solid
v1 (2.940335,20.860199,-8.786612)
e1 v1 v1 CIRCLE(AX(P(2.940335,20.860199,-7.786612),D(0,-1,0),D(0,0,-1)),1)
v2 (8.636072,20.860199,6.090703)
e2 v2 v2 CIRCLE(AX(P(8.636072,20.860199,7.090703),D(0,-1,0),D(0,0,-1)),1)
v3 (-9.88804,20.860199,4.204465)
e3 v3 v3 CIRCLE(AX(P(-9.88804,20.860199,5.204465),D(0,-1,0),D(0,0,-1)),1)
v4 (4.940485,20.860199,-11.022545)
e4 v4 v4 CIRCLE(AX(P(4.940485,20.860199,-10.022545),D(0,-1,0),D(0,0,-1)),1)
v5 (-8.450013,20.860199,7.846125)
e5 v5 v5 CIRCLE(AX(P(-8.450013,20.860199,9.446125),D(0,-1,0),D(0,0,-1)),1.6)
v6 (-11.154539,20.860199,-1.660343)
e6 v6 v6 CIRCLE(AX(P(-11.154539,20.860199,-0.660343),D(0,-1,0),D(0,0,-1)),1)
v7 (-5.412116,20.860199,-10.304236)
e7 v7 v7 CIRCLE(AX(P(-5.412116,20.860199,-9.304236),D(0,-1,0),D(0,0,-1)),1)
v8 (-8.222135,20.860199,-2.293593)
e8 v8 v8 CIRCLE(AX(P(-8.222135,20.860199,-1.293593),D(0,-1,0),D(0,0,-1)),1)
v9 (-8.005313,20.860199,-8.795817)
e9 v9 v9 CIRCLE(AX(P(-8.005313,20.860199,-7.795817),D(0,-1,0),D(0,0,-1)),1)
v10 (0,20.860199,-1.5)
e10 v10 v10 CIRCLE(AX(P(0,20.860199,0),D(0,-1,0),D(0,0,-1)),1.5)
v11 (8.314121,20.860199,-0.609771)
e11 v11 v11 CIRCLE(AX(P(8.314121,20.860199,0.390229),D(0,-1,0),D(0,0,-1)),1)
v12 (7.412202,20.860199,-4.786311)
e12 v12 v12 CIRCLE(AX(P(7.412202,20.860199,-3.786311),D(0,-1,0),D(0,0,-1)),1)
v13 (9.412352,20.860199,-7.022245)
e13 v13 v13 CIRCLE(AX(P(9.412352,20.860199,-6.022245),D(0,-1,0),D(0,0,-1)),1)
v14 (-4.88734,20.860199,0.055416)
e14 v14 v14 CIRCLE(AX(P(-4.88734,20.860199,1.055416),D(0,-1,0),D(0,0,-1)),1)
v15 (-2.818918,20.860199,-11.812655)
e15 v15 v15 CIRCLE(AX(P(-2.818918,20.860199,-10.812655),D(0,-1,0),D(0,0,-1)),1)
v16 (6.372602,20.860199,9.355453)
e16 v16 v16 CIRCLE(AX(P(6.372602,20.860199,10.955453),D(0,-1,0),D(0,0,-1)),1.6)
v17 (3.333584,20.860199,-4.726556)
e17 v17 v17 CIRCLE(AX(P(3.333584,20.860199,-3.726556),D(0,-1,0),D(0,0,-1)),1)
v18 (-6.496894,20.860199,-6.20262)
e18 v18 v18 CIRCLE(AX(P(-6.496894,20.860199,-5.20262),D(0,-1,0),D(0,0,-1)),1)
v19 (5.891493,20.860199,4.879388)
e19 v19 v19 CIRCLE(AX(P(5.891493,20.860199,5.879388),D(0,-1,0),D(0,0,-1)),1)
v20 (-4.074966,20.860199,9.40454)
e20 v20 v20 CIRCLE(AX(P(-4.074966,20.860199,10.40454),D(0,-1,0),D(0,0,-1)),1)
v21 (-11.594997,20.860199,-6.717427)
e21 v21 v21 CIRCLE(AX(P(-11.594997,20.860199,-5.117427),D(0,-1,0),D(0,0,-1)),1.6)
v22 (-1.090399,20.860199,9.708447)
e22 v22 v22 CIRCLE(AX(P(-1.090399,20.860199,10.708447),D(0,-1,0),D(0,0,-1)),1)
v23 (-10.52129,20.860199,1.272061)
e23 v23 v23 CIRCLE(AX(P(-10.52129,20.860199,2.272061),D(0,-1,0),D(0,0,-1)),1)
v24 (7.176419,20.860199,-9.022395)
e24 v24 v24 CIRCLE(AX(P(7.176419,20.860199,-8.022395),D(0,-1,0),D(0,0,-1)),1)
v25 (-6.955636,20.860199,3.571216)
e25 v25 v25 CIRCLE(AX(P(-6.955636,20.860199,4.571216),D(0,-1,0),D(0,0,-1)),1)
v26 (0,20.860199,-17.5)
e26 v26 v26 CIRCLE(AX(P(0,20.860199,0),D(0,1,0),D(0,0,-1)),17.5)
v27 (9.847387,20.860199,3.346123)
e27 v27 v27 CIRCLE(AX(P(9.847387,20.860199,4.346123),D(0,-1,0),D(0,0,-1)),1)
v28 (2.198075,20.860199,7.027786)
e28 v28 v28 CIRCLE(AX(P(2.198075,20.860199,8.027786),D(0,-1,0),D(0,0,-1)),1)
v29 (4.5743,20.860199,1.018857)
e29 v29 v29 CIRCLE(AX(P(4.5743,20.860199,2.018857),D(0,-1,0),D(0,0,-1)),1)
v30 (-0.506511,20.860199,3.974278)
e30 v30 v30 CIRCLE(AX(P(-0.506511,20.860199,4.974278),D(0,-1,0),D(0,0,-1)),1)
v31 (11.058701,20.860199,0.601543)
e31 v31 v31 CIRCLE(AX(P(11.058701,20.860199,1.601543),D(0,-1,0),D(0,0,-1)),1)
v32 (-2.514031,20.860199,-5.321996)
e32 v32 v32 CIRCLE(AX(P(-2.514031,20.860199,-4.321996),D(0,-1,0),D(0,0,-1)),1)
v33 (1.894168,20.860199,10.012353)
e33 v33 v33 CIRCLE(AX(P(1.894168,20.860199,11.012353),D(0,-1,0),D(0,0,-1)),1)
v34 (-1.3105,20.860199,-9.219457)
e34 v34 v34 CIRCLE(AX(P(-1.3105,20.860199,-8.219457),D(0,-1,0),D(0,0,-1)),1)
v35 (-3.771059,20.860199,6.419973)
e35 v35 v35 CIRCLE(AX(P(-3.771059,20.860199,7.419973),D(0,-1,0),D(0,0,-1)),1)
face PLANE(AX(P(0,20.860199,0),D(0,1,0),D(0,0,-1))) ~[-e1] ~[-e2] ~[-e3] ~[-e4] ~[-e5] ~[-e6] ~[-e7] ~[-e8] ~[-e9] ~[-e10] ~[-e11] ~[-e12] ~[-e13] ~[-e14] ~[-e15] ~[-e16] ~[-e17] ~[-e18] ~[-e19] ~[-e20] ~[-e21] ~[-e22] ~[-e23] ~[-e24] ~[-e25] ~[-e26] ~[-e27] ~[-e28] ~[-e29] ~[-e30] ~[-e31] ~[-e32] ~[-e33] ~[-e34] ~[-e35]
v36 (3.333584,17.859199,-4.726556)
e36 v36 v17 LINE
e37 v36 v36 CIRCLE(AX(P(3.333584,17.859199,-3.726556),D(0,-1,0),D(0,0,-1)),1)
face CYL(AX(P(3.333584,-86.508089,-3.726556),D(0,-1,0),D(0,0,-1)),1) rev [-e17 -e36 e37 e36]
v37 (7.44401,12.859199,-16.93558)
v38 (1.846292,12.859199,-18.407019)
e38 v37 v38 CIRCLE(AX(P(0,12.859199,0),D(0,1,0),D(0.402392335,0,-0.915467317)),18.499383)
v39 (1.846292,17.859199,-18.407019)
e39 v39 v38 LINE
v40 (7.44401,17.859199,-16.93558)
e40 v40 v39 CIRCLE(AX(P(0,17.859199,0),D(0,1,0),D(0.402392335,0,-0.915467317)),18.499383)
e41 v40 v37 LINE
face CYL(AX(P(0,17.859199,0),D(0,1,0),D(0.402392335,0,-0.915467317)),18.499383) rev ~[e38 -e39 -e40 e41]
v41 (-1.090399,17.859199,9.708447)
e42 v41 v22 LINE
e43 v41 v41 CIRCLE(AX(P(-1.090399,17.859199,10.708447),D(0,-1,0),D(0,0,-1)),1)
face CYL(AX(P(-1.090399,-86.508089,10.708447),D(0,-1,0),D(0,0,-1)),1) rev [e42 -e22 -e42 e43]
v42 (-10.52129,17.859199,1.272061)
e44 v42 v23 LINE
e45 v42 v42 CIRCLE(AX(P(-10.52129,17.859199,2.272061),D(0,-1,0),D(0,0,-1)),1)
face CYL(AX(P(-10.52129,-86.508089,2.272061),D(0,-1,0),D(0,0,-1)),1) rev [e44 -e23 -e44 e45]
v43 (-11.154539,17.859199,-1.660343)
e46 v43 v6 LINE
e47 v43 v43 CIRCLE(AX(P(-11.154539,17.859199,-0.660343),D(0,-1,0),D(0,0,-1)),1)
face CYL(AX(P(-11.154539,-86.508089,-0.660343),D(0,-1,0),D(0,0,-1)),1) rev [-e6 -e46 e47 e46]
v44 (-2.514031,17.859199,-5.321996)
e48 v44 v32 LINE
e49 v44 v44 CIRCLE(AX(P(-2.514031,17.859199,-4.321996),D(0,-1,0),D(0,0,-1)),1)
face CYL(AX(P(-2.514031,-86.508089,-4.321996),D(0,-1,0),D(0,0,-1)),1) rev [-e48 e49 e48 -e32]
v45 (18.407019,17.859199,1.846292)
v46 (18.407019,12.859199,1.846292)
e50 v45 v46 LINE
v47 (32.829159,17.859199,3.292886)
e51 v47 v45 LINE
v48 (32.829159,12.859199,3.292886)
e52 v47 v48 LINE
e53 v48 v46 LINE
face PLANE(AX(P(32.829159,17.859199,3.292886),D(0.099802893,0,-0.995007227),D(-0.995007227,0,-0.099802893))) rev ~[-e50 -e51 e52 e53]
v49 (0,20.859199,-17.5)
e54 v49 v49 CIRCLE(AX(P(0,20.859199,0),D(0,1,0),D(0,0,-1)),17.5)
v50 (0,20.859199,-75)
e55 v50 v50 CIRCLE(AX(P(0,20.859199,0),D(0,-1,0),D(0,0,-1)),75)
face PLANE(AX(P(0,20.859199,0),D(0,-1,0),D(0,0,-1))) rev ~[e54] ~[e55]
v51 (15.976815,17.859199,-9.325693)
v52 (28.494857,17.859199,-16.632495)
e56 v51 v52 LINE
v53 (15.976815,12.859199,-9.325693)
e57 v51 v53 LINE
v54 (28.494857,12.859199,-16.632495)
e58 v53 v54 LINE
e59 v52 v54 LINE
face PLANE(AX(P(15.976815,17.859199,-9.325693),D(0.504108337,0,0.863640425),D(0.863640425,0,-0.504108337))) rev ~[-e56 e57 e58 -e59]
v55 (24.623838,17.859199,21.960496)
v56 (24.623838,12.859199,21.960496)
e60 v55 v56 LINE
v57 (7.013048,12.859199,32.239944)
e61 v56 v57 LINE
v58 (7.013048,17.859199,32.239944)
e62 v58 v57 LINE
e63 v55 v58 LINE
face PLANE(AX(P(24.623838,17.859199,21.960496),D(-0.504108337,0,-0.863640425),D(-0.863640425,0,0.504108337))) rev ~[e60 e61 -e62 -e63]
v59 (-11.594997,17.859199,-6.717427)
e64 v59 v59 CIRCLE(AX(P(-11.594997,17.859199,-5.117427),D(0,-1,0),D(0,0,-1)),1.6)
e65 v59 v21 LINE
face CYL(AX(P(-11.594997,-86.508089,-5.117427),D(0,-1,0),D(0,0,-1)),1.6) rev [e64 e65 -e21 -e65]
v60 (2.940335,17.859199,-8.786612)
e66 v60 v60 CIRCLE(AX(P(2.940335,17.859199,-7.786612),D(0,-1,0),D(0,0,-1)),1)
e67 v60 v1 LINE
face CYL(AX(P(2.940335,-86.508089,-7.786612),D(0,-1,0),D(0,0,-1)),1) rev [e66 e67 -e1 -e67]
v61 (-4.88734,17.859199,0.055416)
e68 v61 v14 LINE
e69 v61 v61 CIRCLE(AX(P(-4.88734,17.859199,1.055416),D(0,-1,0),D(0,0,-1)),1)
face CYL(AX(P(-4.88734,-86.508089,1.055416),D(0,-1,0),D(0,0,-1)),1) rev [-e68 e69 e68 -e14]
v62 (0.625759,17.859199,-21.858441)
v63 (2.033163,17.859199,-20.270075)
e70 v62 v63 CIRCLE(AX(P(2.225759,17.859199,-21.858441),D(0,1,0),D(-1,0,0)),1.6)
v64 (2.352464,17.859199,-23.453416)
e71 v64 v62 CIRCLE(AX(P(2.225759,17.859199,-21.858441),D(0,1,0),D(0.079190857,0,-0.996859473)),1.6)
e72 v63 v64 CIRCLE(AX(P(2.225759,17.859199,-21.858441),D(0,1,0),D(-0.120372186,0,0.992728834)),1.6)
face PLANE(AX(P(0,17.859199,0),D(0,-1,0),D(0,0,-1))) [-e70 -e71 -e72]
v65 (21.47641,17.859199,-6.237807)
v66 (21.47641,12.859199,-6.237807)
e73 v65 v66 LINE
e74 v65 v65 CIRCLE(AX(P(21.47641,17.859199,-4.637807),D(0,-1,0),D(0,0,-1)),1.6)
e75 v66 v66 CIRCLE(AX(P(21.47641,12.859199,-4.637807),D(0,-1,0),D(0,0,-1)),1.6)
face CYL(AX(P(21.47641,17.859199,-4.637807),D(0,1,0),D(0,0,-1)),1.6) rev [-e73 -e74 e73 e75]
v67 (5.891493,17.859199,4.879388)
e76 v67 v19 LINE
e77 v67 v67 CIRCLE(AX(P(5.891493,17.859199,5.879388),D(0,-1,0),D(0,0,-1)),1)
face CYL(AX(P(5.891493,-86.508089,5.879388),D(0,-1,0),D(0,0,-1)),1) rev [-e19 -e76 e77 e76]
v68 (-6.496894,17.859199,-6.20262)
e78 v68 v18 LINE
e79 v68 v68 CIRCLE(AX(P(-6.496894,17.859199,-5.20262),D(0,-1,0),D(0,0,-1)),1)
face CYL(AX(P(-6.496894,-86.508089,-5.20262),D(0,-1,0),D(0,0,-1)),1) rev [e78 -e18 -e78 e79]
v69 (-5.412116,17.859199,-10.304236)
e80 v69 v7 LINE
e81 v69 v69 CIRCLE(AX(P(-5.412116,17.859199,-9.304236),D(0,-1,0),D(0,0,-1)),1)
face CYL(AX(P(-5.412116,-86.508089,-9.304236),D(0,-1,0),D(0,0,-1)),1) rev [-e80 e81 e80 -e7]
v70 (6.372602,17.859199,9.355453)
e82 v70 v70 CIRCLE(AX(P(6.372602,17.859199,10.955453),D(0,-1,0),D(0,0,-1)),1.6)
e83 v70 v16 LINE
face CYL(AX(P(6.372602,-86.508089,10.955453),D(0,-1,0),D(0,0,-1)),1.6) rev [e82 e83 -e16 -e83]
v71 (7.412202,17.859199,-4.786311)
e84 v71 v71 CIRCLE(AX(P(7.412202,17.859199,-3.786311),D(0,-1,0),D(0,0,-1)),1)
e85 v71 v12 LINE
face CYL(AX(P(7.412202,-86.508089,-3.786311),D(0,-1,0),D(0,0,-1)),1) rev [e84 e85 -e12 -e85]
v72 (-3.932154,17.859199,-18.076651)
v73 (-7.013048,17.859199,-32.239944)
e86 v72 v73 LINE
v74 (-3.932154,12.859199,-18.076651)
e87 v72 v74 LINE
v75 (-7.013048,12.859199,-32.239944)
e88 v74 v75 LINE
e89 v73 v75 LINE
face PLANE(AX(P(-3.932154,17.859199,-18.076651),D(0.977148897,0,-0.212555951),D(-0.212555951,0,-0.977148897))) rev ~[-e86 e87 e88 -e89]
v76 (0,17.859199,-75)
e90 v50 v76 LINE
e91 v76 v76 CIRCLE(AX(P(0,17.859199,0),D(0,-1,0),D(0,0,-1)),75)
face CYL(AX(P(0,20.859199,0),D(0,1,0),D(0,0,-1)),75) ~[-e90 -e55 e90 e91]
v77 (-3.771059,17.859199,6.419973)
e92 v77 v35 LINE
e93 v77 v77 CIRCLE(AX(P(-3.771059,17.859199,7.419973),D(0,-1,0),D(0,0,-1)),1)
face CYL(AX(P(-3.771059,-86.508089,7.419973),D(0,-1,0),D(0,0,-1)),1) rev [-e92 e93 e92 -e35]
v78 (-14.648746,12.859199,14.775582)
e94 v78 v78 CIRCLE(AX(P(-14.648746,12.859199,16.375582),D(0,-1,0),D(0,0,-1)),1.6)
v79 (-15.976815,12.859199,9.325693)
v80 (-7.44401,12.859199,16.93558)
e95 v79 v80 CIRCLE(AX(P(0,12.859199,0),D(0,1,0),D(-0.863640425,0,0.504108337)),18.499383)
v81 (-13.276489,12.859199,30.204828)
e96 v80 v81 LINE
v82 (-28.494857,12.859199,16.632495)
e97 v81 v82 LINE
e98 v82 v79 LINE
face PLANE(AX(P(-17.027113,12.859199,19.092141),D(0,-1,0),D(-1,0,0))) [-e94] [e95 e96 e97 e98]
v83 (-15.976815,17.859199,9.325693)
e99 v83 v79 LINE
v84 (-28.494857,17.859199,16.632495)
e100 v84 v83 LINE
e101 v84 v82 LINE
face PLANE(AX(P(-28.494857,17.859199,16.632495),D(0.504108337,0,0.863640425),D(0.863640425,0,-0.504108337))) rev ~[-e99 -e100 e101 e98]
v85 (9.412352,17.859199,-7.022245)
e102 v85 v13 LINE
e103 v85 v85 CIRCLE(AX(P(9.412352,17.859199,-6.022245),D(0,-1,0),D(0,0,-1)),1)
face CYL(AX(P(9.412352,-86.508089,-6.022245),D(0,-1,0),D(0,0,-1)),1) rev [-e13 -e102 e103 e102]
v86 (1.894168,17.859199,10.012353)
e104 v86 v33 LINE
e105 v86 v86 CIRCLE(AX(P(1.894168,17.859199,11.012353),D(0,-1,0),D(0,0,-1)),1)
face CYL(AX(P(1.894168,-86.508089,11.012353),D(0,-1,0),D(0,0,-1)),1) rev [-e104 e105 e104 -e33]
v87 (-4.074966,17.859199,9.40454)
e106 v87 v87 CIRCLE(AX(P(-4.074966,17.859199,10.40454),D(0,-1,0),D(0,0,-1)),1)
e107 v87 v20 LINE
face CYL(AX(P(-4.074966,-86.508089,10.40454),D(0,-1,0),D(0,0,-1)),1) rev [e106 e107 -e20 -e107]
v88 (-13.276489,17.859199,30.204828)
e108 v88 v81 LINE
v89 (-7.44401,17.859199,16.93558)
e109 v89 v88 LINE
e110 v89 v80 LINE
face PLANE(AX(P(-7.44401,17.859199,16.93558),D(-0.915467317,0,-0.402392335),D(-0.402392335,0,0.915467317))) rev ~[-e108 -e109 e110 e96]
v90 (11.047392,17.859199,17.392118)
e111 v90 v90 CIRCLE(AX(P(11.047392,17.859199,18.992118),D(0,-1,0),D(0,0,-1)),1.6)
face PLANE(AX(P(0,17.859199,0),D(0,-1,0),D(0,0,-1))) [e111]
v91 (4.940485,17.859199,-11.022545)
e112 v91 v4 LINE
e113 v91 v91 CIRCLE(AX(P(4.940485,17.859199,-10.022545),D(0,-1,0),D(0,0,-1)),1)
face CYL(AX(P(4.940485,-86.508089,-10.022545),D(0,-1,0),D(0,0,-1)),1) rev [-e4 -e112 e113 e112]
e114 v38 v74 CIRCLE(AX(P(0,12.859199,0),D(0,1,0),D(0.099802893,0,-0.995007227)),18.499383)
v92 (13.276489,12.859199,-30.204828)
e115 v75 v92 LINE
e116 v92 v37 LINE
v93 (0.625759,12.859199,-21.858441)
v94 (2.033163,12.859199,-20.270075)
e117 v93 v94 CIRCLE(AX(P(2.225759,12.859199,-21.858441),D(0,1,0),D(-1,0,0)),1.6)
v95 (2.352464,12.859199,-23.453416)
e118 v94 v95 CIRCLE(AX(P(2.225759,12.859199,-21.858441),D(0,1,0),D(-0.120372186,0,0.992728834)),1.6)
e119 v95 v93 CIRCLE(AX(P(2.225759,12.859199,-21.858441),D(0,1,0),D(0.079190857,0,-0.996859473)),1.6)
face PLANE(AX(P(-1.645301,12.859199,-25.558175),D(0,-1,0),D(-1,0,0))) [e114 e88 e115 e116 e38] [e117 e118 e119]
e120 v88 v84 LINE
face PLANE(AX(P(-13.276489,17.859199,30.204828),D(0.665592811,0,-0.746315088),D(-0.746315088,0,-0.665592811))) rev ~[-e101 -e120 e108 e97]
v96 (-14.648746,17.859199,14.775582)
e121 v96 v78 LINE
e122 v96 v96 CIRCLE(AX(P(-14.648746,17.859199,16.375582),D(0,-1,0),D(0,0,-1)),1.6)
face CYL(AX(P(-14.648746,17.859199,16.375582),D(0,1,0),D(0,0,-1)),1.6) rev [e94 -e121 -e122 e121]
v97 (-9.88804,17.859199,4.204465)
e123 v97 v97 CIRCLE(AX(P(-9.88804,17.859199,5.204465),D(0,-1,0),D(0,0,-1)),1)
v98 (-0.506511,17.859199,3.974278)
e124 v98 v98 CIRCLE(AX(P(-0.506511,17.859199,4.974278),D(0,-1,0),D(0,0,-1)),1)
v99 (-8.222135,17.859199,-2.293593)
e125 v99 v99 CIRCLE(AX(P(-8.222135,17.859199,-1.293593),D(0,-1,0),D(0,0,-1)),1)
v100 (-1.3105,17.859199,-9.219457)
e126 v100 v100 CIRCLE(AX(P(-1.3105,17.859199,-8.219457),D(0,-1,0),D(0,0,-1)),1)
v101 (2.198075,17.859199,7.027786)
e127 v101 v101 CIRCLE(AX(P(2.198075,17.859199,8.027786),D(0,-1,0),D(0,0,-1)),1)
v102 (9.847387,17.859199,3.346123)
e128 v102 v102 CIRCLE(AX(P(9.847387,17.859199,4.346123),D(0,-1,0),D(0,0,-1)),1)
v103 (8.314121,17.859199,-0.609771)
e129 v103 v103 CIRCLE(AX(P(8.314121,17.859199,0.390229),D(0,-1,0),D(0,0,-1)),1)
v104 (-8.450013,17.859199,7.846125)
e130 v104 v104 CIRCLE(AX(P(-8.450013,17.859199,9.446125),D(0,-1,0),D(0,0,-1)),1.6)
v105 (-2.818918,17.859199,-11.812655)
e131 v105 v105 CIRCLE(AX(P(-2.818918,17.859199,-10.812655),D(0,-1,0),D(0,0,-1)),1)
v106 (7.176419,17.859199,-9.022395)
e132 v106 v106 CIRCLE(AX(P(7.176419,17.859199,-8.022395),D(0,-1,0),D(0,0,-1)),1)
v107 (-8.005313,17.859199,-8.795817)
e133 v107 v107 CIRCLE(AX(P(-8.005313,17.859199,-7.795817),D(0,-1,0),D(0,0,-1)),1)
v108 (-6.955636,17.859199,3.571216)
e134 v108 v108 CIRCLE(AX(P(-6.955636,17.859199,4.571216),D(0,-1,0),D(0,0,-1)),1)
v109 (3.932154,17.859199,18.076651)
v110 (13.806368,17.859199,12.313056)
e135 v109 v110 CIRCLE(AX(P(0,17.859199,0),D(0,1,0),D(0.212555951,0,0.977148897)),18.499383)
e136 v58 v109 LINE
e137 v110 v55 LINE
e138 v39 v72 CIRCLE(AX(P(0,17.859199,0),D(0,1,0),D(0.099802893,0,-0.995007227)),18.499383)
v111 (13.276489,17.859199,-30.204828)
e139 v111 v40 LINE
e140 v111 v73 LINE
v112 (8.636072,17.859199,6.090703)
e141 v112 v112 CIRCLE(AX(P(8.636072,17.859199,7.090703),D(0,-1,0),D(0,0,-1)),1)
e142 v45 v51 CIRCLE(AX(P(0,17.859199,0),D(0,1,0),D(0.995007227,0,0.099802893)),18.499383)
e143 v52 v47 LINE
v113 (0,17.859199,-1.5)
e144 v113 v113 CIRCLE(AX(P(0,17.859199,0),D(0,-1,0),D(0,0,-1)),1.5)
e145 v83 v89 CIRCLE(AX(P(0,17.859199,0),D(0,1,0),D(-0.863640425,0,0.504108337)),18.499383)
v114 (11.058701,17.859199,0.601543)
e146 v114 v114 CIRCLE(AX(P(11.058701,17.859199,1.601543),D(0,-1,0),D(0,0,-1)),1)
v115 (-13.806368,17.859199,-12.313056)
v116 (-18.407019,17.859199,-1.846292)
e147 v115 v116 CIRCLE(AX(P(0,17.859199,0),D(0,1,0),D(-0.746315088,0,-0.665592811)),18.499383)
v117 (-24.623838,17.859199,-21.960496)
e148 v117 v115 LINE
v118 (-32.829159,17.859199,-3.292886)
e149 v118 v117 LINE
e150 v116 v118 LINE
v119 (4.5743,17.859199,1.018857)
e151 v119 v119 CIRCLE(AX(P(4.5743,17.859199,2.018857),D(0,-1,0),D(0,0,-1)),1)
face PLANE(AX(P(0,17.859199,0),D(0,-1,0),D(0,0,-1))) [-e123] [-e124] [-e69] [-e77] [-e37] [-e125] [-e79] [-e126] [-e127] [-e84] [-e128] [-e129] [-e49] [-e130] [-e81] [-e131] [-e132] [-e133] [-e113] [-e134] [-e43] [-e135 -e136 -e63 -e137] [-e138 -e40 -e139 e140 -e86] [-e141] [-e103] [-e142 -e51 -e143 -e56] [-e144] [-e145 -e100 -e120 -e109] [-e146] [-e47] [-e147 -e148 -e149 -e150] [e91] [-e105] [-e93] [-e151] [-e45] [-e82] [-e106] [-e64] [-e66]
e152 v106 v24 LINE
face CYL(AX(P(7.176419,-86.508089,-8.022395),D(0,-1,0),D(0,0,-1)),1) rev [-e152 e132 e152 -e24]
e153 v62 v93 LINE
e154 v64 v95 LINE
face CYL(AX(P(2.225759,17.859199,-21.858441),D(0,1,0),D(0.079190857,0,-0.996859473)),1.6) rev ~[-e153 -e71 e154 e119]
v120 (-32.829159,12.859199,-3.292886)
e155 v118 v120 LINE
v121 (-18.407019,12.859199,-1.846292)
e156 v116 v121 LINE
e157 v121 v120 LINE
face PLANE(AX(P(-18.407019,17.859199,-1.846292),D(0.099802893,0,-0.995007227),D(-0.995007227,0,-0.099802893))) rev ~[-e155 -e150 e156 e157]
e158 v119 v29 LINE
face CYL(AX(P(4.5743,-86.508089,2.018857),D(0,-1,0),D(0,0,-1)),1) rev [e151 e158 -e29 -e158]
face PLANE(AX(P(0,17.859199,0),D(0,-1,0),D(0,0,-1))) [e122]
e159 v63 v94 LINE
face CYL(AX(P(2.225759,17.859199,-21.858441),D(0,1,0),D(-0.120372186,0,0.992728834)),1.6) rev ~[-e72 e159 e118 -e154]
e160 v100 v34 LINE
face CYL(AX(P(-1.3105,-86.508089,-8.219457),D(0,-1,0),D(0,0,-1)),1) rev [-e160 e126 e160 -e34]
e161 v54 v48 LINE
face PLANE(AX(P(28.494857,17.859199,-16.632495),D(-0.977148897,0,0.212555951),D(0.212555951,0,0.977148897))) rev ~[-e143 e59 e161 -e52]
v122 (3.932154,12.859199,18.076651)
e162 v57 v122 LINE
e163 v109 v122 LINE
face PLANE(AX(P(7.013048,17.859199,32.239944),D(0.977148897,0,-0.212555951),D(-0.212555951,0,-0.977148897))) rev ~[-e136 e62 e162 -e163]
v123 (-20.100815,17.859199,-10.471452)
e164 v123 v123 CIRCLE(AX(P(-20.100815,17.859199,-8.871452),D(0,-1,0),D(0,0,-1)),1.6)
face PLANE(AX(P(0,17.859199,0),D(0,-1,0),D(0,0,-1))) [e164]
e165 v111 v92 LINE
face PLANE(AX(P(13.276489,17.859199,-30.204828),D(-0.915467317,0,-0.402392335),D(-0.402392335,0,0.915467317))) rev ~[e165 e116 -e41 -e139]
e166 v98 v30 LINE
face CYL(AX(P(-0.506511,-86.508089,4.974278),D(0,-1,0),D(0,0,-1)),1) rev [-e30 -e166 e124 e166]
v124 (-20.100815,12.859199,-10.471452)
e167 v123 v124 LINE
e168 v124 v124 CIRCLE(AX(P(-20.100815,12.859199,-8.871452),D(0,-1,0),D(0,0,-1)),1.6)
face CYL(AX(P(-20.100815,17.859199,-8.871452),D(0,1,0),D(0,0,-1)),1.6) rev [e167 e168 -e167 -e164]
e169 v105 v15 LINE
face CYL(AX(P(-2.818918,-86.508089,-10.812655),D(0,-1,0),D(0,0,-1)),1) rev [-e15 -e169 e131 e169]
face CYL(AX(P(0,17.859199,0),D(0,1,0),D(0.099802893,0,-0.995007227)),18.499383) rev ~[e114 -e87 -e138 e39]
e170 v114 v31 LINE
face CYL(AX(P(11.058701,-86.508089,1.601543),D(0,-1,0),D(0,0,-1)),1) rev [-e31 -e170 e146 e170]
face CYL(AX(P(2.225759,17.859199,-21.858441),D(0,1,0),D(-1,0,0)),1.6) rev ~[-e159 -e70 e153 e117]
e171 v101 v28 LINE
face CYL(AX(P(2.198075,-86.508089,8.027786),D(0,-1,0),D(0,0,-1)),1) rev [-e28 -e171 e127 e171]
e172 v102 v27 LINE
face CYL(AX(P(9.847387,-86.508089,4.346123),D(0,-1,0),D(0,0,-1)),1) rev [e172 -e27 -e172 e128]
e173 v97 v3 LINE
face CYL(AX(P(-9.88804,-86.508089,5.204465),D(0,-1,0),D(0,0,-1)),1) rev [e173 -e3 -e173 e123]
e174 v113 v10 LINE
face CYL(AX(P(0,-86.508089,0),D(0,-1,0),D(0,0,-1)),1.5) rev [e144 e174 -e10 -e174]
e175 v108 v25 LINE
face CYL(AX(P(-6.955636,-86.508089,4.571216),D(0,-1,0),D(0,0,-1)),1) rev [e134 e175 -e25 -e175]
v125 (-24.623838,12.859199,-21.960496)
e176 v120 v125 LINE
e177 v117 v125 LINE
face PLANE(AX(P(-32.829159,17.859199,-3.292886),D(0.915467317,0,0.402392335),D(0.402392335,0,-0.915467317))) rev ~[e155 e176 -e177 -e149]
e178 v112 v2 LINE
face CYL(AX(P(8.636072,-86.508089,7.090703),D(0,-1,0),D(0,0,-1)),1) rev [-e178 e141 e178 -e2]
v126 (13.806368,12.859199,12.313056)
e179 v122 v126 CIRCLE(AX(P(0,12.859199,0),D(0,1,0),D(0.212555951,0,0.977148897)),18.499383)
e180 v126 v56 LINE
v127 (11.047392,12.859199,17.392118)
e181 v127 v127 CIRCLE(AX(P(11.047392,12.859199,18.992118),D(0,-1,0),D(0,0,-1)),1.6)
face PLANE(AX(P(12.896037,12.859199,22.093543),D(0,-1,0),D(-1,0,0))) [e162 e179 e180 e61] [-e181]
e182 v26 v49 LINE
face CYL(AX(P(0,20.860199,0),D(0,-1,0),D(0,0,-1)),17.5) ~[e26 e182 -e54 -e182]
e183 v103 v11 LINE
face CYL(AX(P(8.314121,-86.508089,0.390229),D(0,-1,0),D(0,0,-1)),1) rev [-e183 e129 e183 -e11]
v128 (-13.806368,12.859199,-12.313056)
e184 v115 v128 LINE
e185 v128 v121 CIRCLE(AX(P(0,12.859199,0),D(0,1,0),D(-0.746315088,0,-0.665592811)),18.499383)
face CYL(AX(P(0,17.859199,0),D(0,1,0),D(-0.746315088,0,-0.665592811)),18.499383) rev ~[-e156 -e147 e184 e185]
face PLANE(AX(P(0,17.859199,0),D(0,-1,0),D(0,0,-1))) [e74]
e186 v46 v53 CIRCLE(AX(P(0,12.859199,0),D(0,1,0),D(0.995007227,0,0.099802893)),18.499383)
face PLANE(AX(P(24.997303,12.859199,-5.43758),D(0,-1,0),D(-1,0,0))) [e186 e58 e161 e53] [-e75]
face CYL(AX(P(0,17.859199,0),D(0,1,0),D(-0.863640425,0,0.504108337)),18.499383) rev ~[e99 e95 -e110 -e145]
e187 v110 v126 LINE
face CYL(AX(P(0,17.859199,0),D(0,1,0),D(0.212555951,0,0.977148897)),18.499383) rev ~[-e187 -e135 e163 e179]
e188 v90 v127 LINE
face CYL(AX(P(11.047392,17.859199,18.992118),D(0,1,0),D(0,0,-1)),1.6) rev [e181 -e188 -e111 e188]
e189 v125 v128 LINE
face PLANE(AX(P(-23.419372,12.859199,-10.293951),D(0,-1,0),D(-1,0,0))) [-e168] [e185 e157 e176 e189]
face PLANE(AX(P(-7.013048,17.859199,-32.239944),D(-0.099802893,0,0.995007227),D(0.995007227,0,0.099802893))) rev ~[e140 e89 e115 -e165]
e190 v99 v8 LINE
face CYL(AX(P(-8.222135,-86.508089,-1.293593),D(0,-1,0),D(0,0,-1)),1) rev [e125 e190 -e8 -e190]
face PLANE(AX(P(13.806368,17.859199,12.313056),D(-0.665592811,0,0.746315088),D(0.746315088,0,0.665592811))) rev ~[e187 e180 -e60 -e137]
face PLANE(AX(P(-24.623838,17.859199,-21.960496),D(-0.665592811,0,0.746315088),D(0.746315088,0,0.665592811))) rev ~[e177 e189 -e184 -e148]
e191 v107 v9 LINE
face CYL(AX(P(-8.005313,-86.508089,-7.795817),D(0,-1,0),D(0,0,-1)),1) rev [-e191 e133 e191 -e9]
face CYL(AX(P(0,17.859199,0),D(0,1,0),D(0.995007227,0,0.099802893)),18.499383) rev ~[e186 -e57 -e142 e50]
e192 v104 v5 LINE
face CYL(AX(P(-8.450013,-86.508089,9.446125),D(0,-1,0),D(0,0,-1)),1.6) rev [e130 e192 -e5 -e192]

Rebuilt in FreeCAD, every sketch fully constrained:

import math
import FreeCAD as App
import Part
import Sketcher
from FreeCAD import Vector
Q = App.Units.Quantity

doc = App.newDocument("Part")
body = doc.addObject("PartDesign::Body", "Body")

# Sketch on XY plane
sketch1 = body.newObject("Sketcher::SketchObject", "Sketch")
sketch1.AttachmentSupport = (doc.getObject("XY_Plane"), [""])
sketch1.MapMode = "FlatFace"
sketch1.addGeometry([
    Part.LineSegment(Vector(0, 20.8602, 0), Vector(-17.5, 20.8602, 0)),
    Part.LineSegment(Vector(-17.5, 20.8602, 0), Vector(-17.5, 20.8592, 0)),
    Part.LineSegment(Vector(-17.5, 20.8592, 0), Vector(0, 20.8592, 0)),
    Part.LineSegment(Vector(0, 20.8592, 0), Vector(0, 20.8602, 0)),
], False)
sketch1.addConstraint([
    Sketcher.Constraint("Coincident", 0, 2, 1, 1),
    Sketcher.Constraint("Coincident", 1, 2, 2, 1),
    Sketcher.Constraint("Coincident", 2, 2, 3, 1),
    Sketcher.Constraint("Coincident", 3, 2, 0, 1),
    Sketcher.Constraint("Horizontal", 0),
    Sketcher.Constraint("Vertical", 1),
    Sketcher.Constraint("Horizontal", 2),
    Sketcher.Constraint("Vertical", 3),
    Sketcher.Constraint("PointOnObject", 2, 2, -2),
    Sketcher.Constraint("DistanceX", 0, 2, 0, 1, Q("17.5 mm")),
    Sketcher.Constraint("DistanceY", 1, 2, 1, 1, Q("0.001 mm")),
    Sketcher.Constraint("DistanceY", -1, 1, 0, 2, Q("20.860199 mm")),
])
revolution = body.newObject("PartDesign::Revolution", "Revolution")
revolution.Profile = sketch1
revolution.ReferenceAxis = (sketch1, ["V_Axis"])
revolution.Angle = 360

# Sketch on XZ plane
sketch2 = body.newObject("Sketcher::SketchObject", "Sketch001")
sketch2.AttachmentSupport = (doc.getObject("XZ_Plane"), [""])
sketch2.MapMode = "FlatFace"
sketch2.AttachmentOffset = App.Placement(Vector(0, 0, -20.859199), App.Rotation())
sketch2.addGeometry(Part.Circle(Vector(0, 0, 0), Vector(0, 0, 1), 75), False)
sketch2.addConstraint([
    Sketcher.Constraint("Coincident", 0, 3, -1, 1),
    Sketcher.Constraint("Diameter", 0, Q("150 mm")),
])
pad1 = body.newObject("PartDesign::Pad", "Pad")
pad1.Profile = sketch2
pad1.Length = 3

# Sketch on XZ plane
sketch3 = body.newObject("Sketcher::SketchObject", "Sketch002")
sketch3.AttachmentSupport = (doc.getObject("XZ_Plane"), [""])
sketch3.MapMode = "FlatFace"
sketch3.AttachmentOffset = App.Placement(Vector(0, 0, -17.859199), App.Rotation())
sketch3.addGeometry([
    Part.ArcOfCircle(Part.Circle(Vector(0, 0, 0), Vector(0, 0, 1), 18.5), math.radians(-102.27), math.radians(-84.27)),  # 0
    Part.LineSegment(Vector(-3.9, -18.1, 0), Vector(-7, -32.2, 0)),  # 1
    Part.LineSegment(Vector(-7, -32.2, 0), Vector(13.3, -30.2, 0)),  # 2
    Part.LineSegment(Vector(13.3, -30.2, 0), Vector(7.4, -16.9, 0)),  # 3
    Part.ArcOfCircle(Part.Circle(Vector(0, 0, 0), Vector(0, 0, 1), 18.5), math.radians(-84.27), math.radians(-66.27)),  # 4
    Part.ArcOfCircle(Part.Circle(Vector(2.2, -21.9, 0), Vector(0, 0, 1), 1.6), math.radians(180), math.radians(275)),  # 5
    Part.ArcOfCircle(Part.Circle(Vector(2.2, -21.9, 0), Vector(0, 0, 1), 1.6), math.radians(97), math.radians(180)),  # 6
    Part.ArcOfCircle(Part.Circle(Vector(2.2, -21.9, 0), Vector(0, 0, 1), 1.6), math.radians(-85), math.radians(97)),  # 7
    Part.LineSegment(Vector(-24.6, -22, 0), Vector(-13.8, -12.3, 0)),  # 8
    Part.ArcOfCircle(Part.Circle(Vector(0, 0, 0), Vector(0, 0, 1), 18.5), math.radians(-174), math.radians(-138)),  # 9
    Part.LineSegment(Vector(-18.4, -1.8, 0), Vector(-32.8, -3.3, 0)),  # 10
    Part.LineSegment(Vector(-32.8, -3.3, 0), Vector(-24.6, -22, 0)),  # 11
    Part.Circle(Vector(-20.1, -8.9, 0), Vector(0, 0, 1), 1.6),  # 12
    Part.ArcOfCircle(Part.Circle(Vector(0, 0, 0), Vector(0, 0, 1), 18.5), math.radians(114), math.radians(150)),  # 13
    Part.LineSegment(Vector(-7.4, 16.9, 0), Vector(-13.3, 30.2, 0)),  # 14
    Part.LineSegment(Vector(-13.3, 30.2, 0), Vector(-28.5, 16.6, 0)),  # 15
    Part.LineSegment(Vector(-28.5, 16.6, 0), Vector(-16, 9.3, 0)),  # 16
    Part.Circle(Vector(-14.6, 16.4, 0), Vector(0, 0, 1), 1.6),  # 17
    Part.LineSegment(Vector(7, 32.2, 0), Vector(3.9, 18.1, 0)),  # 18
    Part.ArcOfCircle(Part.Circle(Vector(0, 0, 0), Vector(0, 0, 1), 18.5), math.radians(42), math.radians(78)),  # 19
    Part.LineSegment(Vector(13.8, 12.3, 0), Vector(24.6, 22, 0)),  # 20
    Part.LineSegment(Vector(24.6, 22, 0), Vector(7, 32.2, 0)),  # 21
    Part.Circle(Vector(11, 19, 0), Vector(0, 0, 1), 1.6),  # 22
    Part.LineSegment(Vector(32.8, 3.3, 0), Vector(18.4, 1.8, 0)),  # 23
    Part.ArcOfCircle(Part.Circle(Vector(0, 0, 0), Vector(0, 0, 1), 18.5), math.radians(-30), math.radians(6)),  # 24
    Part.LineSegment(Vector(16, -9.3, 0), Vector(28.5, -16.6, 0)),  # 25
    Part.LineSegment(Vector(28.5, -16.6, 0), Vector(32.8, 3.3, 0)),  # 26
    Part.Circle(Vector(21.5, -4.6, 0), Vector(0, 0, 1), 1.6),  # 27
], False)
sketch3.addConstraint([
    Sketcher.Constraint("Coincident", 0, 1, 1, 1),
    Sketcher.Constraint("Coincident", 1, 2, 2, 1),
    Sketcher.Constraint("Coincident", 2, 2, 3, 1),
    Sketcher.Constraint("Coincident", 3, 2, 4, 2),
    Sketcher.Constraint("Tangent", 4, 1, 0, 2),
    Sketcher.Constraint("Tangent", 5, 1, 6, 2),
    Sketcher.Constraint("Tangent", 6, 1, 7, 2),
    Sketcher.Constraint("Tangent", 7, 1, 5, 2),
    Sketcher.Constraint("Coincident", 8, 2, 9, 2),
    Sketcher.Constraint("Coincident", 9, 1, 10, 1),
    Sketcher.Constraint("Coincident", 10, 2, 11, 1),
    Sketcher.Constraint("Coincident", 11, 2, 8, 1),
    Sketcher.Constraint("Coincident", 13, 1, 14, 1),
    Sketcher.Constraint("Coincident", 14, 2, 15, 1),
    Sketcher.Constraint("Coincident", 15, 2, 16, 1),
    Sketcher.Constraint("Coincident", 16, 2, 13, 2),
    Sketcher.Constraint("Coincident", 18, 2, 19, 2),
    Sketcher.Constraint("Coincident", 19, 1, 20, 1),
    Sketcher.Constraint("Coincident", 20, 2, 21, 1),
    Sketcher.Constraint("Coincident", 21, 2, 18, 1),
    Sketcher.Constraint("Coincident", 23, 2, 24, 2),
    Sketcher.Constraint("Coincident", 24, 1, 25, 1),
    Sketcher.Constraint("Coincident", 25, 2, 26, 1),
    Sketcher.Constraint("Coincident", 26, 2, 23, 1),
    Sketcher.Constraint("Coincident", 0, 3, -1, 1),
    Sketcher.Constraint("Coincident", 9, 3, -1, 1),
    Sketcher.Constraint("Coincident", 13, 3, -1, 1),
    Sketcher.Constraint("Coincident", 19, 3, -1, 1),
    Sketcher.Constraint("Coincident", 24, 3, -1, 1),
    Sketcher.Constraint("Equal", 0, 4),
    Sketcher.Constraint("Equal", 4, 9),
    Sketcher.Constraint("Equal", 7, 12),
    Sketcher.Constraint("Equal", 9, 13),
    Sketcher.Constraint("Equal", 12, 17),
    Sketcher.Constraint("Equal", 13, 19),
    Sketcher.Constraint("Equal", 17, 22),
    Sketcher.Constraint("Equal", 19, 24),
    Sketcher.Constraint("Equal", 22, 27),
    Sketcher.Constraint("Symmetric", 2, 2, 14, 2, -1, 1),
    Sketcher.Constraint("Symmetric", 11, 2, 20, 2, -1, 1),
    Sketcher.Constraint("Symmetric", 1, 2, 21, 2, -1, 1),
    Sketcher.Constraint("Symmetric", 15, 2, 25, 2, -1, 1),
    Sketcher.Constraint("Symmetric", 10, 2, 26, 2, -1, 1),
    Sketcher.Constraint("Parallel", 2, 10),
    Sketcher.Constraint("Parallel", 3, 11),
    Sketcher.Constraint("Parallel", 11, 14),
    Sketcher.Constraint("Parallel", 8, 15),
    Sketcher.Constraint("Parallel", 1, 18),
    Sketcher.Constraint("Parallel", 15, 20),
    Sketcher.Constraint("Parallel", 16, 21),
    Sketcher.Constraint("Parallel", 10, 23),
    Sketcher.Constraint("Parallel", 21, 25),
    Sketcher.Constraint("Parallel", 18, 26),
    Sketcher.Constraint("Horizontal", 7, 3, 5, 1),
    Sketcher.Constraint("Equal", 1, 3),
    Sketcher.Constraint("Equal", 3, 8),
    Sketcher.Constraint("Equal", 8, 10),
    Sketcher.Constraint("Equal", 2, 11),
    Sketcher.Constraint("Equal", 11, 15),
    Sketcher.Constraint("Equal", 14, 16),
    Sketcher.Constraint("Equal", 15, 21),
    Sketcher.Constraint("Equal", 21, 26),
    Sketcher.Constraint("Diameter", 12, Q("3.2 mm")),
    Sketcher.Constraint("DistanceY", 17, 3, 13, 1, Q("0.559998 mm")),
    Sketcher.Constraint("Radius", 0, Q("18.499383 mm")),
    Sketcher.Constraint("DistanceX", 6, 1, 7, 1, Q("0.319301 mm")),
    Sketcher.Constraint("DistanceX", 10, 2, 15, 2, Q("4.334302 mm")),
    Sketcher.Constraint("DistanceY", 27, 3, 23, 2, Q("6.484099 mm")),
    Sketcher.Constraint("DistanceX", -1, 1, 5, 3, Q("2.225759 mm")),
    Sketcher.Constraint("DistanceY", 5, 3, -1, 1, Q("21.858441 mm")),
    Sketcher.Constraint("DistanceY", 12, 3, -1, 1, Q("8.871452 mm")),
    Sketcher.Constraint("DistanceY", -1, 1, 17, 3, Q("16.375582 mm")),
    Sketcher.Constraint("DistanceY", -1, 1, 22, 3, Q("18.992118 mm")),
    Sketcher.Constraint("DistanceX", -1, 1, 27, 3, Q("21.47641 mm")),
    Sketcher.Constraint("DistanceX", -1, 1, 4, 1, Q("1.846292 mm")),
    Sketcher.Constraint("DistanceX", 12, 3, 17, 3, Q("5.45207 mm")),
    Sketcher.Constraint("DistanceX", 4, 1, 6, 1, Q("0.186871 mm")),
    Sketcher.Constraint("DistanceX", 14, 2, 22, 3, Q("24.323881 mm")),
    Sketcher.Constraint("DistanceX", 15, 2, 17, 3, Q("13.846112 mm")),
])
pad2 = body.newObject("PartDesign::Pad", "Pad001")
pad2.Profile = sketch3
pad2.Length = 5

# Sketch on XZ plane
sketch4 = body.newObject("Sketcher::SketchObject", "Sketch003")
sketch4.AttachmentSupport = (doc.getObject("XZ_Plane"), [""])
sketch4.MapMode = "FlatFace"
sketch4.AttachmentOffset = App.Placement(Vector(0, 0, -20.859199), App.Rotation())
sketch4.addGeometry([
    Part.Circle(Vector(0, 0, 0), Vector(0, 0, 1), 1.5),  # 0
    Part.Circle(Vector(2.9, -7.8, 0), Vector(0, 0, 1), 1),  # 1
    Part.Circle(Vector(4.9, -10, 0), Vector(0, 0, 1), 1),  # 2
    Part.Circle(Vector(7.2, -8, 0), Vector(0, 0, 1), 1),  # 3
    Part.Circle(Vector(9.4, -6, 0), Vector(0, 0, 1), 1),  # 4
    Part.Circle(Vector(7.4, -3.8, 0), Vector(0, 0, 1), 1),  # 5
    Part.Circle(Vector(3.3, -3.7, 0), Vector(0, 0, 1), 1),  # 6
    Part.Circle(Vector(-0.5, 5, 0), Vector(0, 0, 1), 1),  # 7
    Part.Circle(Vector(8.6, 7.1, 0), Vector(0, 0, 1), 1),  # 8
    Part.Circle(Vector(9.8, 4.3, 0), Vector(0, 0, 1), 1),  # 9
    Part.Circle(Vector(11.1, 1.6, 0), Vector(0, 0, 1), 1),  # 10
    Part.Circle(Vector(8.3, 0.4, 0), Vector(0, 0, 1), 1),  # 11
    Part.Circle(Vector(4.6, 2, 0), Vector(0, 0, 1), 1),  # 12
    Part.Circle(Vector(5.9, 5.9, 0), Vector(0, 0, 1), 1),  # 13
    Part.Circle(Vector(6.4, 11, 0), Vector(0, 0, 1), 1.6),  # 14
    Part.Circle(Vector(2.2, 8, 0), Vector(0, 0, 1), 1),  # 15
    Part.Circle(Vector(1.9, 11, 0), Vector(0, 0, 1), 1),  # 16
    Part.Circle(Vector(-1.1, 10.7, 0), Vector(0, 0, 1), 1),  # 17
    Part.Circle(Vector(-4.1, 10.4, 0), Vector(0, 0, 1), 1),  # 18
    Part.Circle(Vector(-8.5, 9.4, 0), Vector(0, 0, 1), 1.6),  # 19
    Part.Circle(Vector(-3.8, 7.4, 0), Vector(0, 0, 1), 1),  # 20
    Part.Circle(Vector(-9.9, 5.2, 0), Vector(0, 0, 1), 1),  # 21
    Part.Circle(Vector(-7, 4.6, 0), Vector(0, 0, 1), 1),  # 22
    Part.Circle(Vector(-4.9, 1.1, 0), Vector(0, 0, 1), 1),  # 23
    Part.Circle(Vector(-10.5, 2.3, 0), Vector(0, 0, 1), 1),  # 24
    Part.Circle(Vector(-11.2, -0.7, 0), Vector(0, 0, 1), 1),  # 25
    Part.Circle(Vector(-8.2, -1.3, 0), Vector(0, 0, 1), 1),  # 26
    Part.Circle(Vector(-2.5, -4.3, 0), Vector(0, 0, 1), 1),  # 27
    Part.Circle(Vector(-6.5, -5.2, 0), Vector(0, 0, 1), 1),  # 28
    Part.Circle(Vector(-1.3, -8.2, 0), Vector(0, 0, 1), 1),  # 29
    Part.Circle(Vector(-2.8, -10.8, 0), Vector(0, 0, 1), 1),  # 30
    Part.Circle(Vector(-5.4, -9.3, 0), Vector(0, 0, 1), 1),  # 31
    Part.Circle(Vector(-8, -7.8, 0), Vector(0, 0, 1), 1),  # 32
    Part.Circle(Vector(-11.6, -5.1, 0), Vector(0, 0, 1), 1.6),  # 33
], False)
sketch4.addConstraint([
    Sketcher.Constraint("Coincident", 0, 3, -1, 1),
    Sketcher.Constraint("Equal", 1, 2),
    Sketcher.Constraint("Equal", 2, 3),
    Sketcher.Constraint("Equal", 3, 4),
    Sketcher.Constraint("Equal", 4, 5),
    Sketcher.Constraint("Equal", 5, 6),
    Sketcher.Constraint("Equal", 6, 7),
    Sketcher.Constraint("Equal", 7, 8),
    Sketcher.Constraint("Equal", 8, 9),
    Sketcher.Constraint("Equal", 9, 10),
    Sketcher.Constraint("Equal", 10, 11),
    Sketcher.Constraint("Equal", 11, 12),
    Sketcher.Constraint("Equal", 12, 13),
    Sketcher.Constraint("Equal", 13, 15),
    Sketcher.Constraint("Equal", 15, 16),
    Sketcher.Constraint("Equal", 16, 17),
    Sketcher.Constraint("Equal", 17, 18),
    Sketcher.Constraint("Equal", 14, 19),
    Sketcher.Constraint("Equal", 18, 20),
    Sketcher.Constraint("Equal", 20, 21),
    Sketcher.Constraint("Equal", 21, 22),
    Sketcher.Constraint("Equal", 22, 23),
    Sketcher.Constraint("Equal", 23, 24),
    Sketcher.Constraint("Equal", 24, 25),
    Sketcher.Constraint("Equal", 25, 26),
    Sketcher.Constraint("Equal", 26, 27),
    Sketcher.Constraint("Equal", 27, 28),
    Sketcher.Constraint("Equal", 28, 29),
    Sketcher.Constraint("Equal", 29, 30),
    Sketcher.Constraint("Equal", 30, 31),
    Sketcher.Constraint("Equal", 31, 32),
    Sketcher.Constraint("Equal", 19, 33),
    Sketcher.Constraint("Diameter", 0, Q("3 mm")),
    Sketcher.Constraint("Diameter", 1, Q("2 mm")),
    Sketcher.Constraint("Diameter", 14, Q("3.2 mm")),
    Sketcher.Constraint("DistanceX", 17, 3, 14, 3, Q("7.463 mm")),
    Sketcher.Constraint("DistanceX", -1, 1, 5, 3, Q("7.412202 mm")),
    Sketcher.Constraint("DistanceX", -1, 1, 10, 3, Q("11.058701 mm")),
    Sketcher.Constraint("DistanceX", -1, 1, 12, 3, Q("4.5743 mm")),
    Sketcher.Constraint("DistanceX", -1, 1, 14, 3, Q("6.372602 mm")),
    Sketcher.Constraint("DistanceX", 29, 3, -1, 1, Q("1.3105 mm")),
    Sketcher.Constraint("DistanceY", 2, 3, 4, 3, Q("4.0003 mm")),
    Sketcher.Constraint("DistanceY", 1, 3, 5, 3, Q("4.0003 mm")),
    Sketcher.Constraint("DistanceY", 6, 3, 10, 3, Q("5.328099 mm")),
    Sketcher.Constraint("DistanceY", 13, 3, 15, 3, Q("2.148398 mm")),
    Sketcher.Constraint("DistanceY", 14, 3, 16, 3, Q("0.0569 mm")),
    Sketcher.Constraint("DistanceY", 23, 3, 22, 3, Q("3.5158 mm")),
    Sketcher.Constraint("DistanceX", 21, 3, 23, 3, Q("5.0007 mm")),
    Sketcher.Constraint("DistanceX", 25, 3, 21, 3, Q("1.266499 mm")),
    Sketcher.Constraint("DistanceX", 26, 3, 22, 3, Q("1.266499 mm")),
    Sketcher.Constraint("DistanceY", 29, 3, 6, 3, Q("4.492901 mm")),
    Sketcher.Constraint("DistanceY", 1, 3, -1, 1, Q("7.786612 mm")),
    Sketcher.Constraint("DistanceX", -1, 1, 3, 3, Q("7.176419 mm")),
    Sketcher.Constraint("DistanceX", 7, 3, -1, 1, Q("0.506511 mm")),
    Sketcher.Constraint("DistanceY", -1, 1, 7, 3, Q("4.974278 mm")),
    Sketcher.Constraint("DistanceX", -1, 1, 11, 3, Q("8.314121 mm")),
    Sketcher.Constraint("DistanceY", -1, 1, 11, 3, Q("0.390229 mm")),
    Sketcher.Constraint("DistanceY", -1, 1, 13, 3, Q("5.879388 mm")),
    Sketcher.Constraint("DistanceX", -1, 1, 16, 3, Q("1.894168 mm")),
    Sketcher.Constraint("DistanceY", -1, 1, 18, 3, Q("10.40454 mm")),
    Sketcher.Constraint("DistanceX", 20, 3, -1, 1, Q("3.771059 mm")),
    Sketcher.Constraint("DistanceX", 21, 3, -1, 1, Q("9.88804 mm")),
    Sketcher.Constraint("DistanceX", 24, 3, -1, 1, Q("10.52129 mm")),
    Sketcher.Constraint("DistanceY", -1, 1, 24, 3, Q("2.272061 mm")),
    Sketcher.Constraint("DistanceX", 27, 3, -1, 1, Q("2.514031 mm")),
    Sketcher.Constraint("DistanceY", 28, 3, -1, 1, Q("5.20262 mm")),
    Sketcher.Constraint("DistanceX", 30, 3, -1, 1, Q("2.818918 mm")),
    Sketcher.Constraint("DistanceX", 1, 3, 2, 3, Q("2.00015 mm")),
    Sketcher.Constraint("DistanceY", 2, 3, 3, 3, Q("2.00015 mm")),
    Sketcher.Constraint("DistanceX", 0, 3, 4, 3, Q("9.412352 mm")),
    Sketcher.Constraint("DistanceX", 6, 3, 5, 3, Q("4.078618 mm")),
    Sketcher.Constraint("DistanceX", 1, 3, 6, 3, Q("0.393249 mm")),
    Sketcher.Constraint("DistanceY", 3, 3, 6, 3, Q("4.295839 mm")),
    Sketcher.Constraint("DistanceX", 5, 3, 8, 3, Q("1.22387 mm")),
    Sketcher.Constraint("DistanceY", 6, 3, 8, 3, Q("10.817259 mm")),
    Sketcher.Constraint("DistanceY", 9, 3, 8, 3, Q("2.74458 mm")),
    Sketcher.Constraint("DistanceY", 11, 3, 12, 3, Q("1.628628 mm")),
    Sketcher.Constraint("DistanceX", 13, 3, 8, 3, Q("2.74458 mm")),
    Sketcher.Constraint("DistanceY", 8, 3, 14, 3, Q("3.864751 mm")),
    Sketcher.Constraint("DistanceY", 15, 3, 17, 3, Q("2.68066 mm")),
    Sketcher.Constraint("DistanceX", 18, 3, 15, 3, Q("6.273041 mm")),
    Sketcher.Constraint("DistanceY", 19, 3, 17, 3, Q("1.262322 mm")),
    Sketcher.Constraint("DistanceX", 19, 3, 16, 3, Q("10.344182 mm")),
    Sketcher.Constraint("DistanceY", 19, 3, 16, 3, Q("1.566228 mm")),
    Sketcher.Constraint("DistanceX", 19, 3, 15, 3, Q("10.648088 mm")),
    Sketcher.Constraint("DistanceY", 21, 3, 19, 3, Q("4.24166 mm")),
    Sketcher.Constraint("DistanceY", 22, 3, 21, 3, Q("0.63325 mm")),
    Sketcher.Constraint("DistanceX", 22, 3, 18, 3, Q("2.88067 mm")),
    Sketcher.Constraint("DistanceY", 24, 3, 20, 3, Q("5.147912 mm")),
    Sketcher.Constraint("DistanceY", 25, 3, 21, 3, Q("5.864809 mm")),
    Sketcher.Constraint("DistanceY", 26, 3, 25, 3, Q("0.63325 mm")),
    Sketcher.Constraint("DistanceY", 27, 3, 6, 3, Q("0.59544 mm")),
    Sketcher.Constraint("DistanceX", 26, 3, 28, 3, Q("1.725241 mm")),
    Sketcher.Constraint("DistanceY", 30, 3, 27, 3, Q("6.490659 mm")),
    Sketcher.Constraint("DistanceY", 30, 3, 31, 3, Q("1.508419 mm")),
    Sketcher.Constraint("DistanceX", 28, 3, 31, 3, Q("1.084779 mm")),
    Sketcher.Constraint("DistanceX", 32, 3, 28, 3, Q("1.508419 mm")),
    Sketcher.Constraint("DistanceY", 31, 3, 32, 3, Q("1.508419 mm")),
    Sketcher.Constraint("DistanceY", 32, 3, 33, 3, Q("2.67839 mm")),
    Sketcher.Constraint("DistanceX", 33, 3, 26, 3, Q("3.372862 mm")),
    Sketcher.Constraint("DistanceX", -1, 1, 9, 3, Q("9.847387 mm")),
])
pocket1 = body.newObject("PartDesign::Pocket", "Pocket")
pocket1.Profile = sketch4
pocket1.Type = "ThroughAll"
pocket1.Midplane = True

doc.recompute()
